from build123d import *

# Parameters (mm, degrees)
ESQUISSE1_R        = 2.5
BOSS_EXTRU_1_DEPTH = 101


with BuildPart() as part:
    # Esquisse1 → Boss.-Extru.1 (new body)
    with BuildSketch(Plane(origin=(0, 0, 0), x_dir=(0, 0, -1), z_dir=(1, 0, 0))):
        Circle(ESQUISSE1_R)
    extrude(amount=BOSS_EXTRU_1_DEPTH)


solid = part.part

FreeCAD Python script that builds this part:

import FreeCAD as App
import Part
import Sketcher
Q = App.Units.Quantity

doc = App.newDocument("Part")
body = doc.addObject("PartDesign::Body", "Body")

# Sketch on YZ plane
sketch1 = body.newObject("Sketcher::SketchObject", "Sketch")
sketch1.AttachmentSupport = (doc.getObject("YZ_Plane"), [""])
sketch1.MapMode = "FlatFace"
sketch1.addGeometry(Part.Circle(App.Vector(0, 0, 0), App.Vector(0, 0, 1), 2.5), False)
sketch1.addConstraint(Sketcher.Constraint("Coincident", 0, 3, -1, 1))
sketch1.addConstraint(Sketcher.Constraint("Diameter", 0, Q("5 mm")))
pad1 = body.newObject("PartDesign::Pad", "Pad")
pad1.Profile = sketch1
pad1.Length = 101

doc.recompute()
